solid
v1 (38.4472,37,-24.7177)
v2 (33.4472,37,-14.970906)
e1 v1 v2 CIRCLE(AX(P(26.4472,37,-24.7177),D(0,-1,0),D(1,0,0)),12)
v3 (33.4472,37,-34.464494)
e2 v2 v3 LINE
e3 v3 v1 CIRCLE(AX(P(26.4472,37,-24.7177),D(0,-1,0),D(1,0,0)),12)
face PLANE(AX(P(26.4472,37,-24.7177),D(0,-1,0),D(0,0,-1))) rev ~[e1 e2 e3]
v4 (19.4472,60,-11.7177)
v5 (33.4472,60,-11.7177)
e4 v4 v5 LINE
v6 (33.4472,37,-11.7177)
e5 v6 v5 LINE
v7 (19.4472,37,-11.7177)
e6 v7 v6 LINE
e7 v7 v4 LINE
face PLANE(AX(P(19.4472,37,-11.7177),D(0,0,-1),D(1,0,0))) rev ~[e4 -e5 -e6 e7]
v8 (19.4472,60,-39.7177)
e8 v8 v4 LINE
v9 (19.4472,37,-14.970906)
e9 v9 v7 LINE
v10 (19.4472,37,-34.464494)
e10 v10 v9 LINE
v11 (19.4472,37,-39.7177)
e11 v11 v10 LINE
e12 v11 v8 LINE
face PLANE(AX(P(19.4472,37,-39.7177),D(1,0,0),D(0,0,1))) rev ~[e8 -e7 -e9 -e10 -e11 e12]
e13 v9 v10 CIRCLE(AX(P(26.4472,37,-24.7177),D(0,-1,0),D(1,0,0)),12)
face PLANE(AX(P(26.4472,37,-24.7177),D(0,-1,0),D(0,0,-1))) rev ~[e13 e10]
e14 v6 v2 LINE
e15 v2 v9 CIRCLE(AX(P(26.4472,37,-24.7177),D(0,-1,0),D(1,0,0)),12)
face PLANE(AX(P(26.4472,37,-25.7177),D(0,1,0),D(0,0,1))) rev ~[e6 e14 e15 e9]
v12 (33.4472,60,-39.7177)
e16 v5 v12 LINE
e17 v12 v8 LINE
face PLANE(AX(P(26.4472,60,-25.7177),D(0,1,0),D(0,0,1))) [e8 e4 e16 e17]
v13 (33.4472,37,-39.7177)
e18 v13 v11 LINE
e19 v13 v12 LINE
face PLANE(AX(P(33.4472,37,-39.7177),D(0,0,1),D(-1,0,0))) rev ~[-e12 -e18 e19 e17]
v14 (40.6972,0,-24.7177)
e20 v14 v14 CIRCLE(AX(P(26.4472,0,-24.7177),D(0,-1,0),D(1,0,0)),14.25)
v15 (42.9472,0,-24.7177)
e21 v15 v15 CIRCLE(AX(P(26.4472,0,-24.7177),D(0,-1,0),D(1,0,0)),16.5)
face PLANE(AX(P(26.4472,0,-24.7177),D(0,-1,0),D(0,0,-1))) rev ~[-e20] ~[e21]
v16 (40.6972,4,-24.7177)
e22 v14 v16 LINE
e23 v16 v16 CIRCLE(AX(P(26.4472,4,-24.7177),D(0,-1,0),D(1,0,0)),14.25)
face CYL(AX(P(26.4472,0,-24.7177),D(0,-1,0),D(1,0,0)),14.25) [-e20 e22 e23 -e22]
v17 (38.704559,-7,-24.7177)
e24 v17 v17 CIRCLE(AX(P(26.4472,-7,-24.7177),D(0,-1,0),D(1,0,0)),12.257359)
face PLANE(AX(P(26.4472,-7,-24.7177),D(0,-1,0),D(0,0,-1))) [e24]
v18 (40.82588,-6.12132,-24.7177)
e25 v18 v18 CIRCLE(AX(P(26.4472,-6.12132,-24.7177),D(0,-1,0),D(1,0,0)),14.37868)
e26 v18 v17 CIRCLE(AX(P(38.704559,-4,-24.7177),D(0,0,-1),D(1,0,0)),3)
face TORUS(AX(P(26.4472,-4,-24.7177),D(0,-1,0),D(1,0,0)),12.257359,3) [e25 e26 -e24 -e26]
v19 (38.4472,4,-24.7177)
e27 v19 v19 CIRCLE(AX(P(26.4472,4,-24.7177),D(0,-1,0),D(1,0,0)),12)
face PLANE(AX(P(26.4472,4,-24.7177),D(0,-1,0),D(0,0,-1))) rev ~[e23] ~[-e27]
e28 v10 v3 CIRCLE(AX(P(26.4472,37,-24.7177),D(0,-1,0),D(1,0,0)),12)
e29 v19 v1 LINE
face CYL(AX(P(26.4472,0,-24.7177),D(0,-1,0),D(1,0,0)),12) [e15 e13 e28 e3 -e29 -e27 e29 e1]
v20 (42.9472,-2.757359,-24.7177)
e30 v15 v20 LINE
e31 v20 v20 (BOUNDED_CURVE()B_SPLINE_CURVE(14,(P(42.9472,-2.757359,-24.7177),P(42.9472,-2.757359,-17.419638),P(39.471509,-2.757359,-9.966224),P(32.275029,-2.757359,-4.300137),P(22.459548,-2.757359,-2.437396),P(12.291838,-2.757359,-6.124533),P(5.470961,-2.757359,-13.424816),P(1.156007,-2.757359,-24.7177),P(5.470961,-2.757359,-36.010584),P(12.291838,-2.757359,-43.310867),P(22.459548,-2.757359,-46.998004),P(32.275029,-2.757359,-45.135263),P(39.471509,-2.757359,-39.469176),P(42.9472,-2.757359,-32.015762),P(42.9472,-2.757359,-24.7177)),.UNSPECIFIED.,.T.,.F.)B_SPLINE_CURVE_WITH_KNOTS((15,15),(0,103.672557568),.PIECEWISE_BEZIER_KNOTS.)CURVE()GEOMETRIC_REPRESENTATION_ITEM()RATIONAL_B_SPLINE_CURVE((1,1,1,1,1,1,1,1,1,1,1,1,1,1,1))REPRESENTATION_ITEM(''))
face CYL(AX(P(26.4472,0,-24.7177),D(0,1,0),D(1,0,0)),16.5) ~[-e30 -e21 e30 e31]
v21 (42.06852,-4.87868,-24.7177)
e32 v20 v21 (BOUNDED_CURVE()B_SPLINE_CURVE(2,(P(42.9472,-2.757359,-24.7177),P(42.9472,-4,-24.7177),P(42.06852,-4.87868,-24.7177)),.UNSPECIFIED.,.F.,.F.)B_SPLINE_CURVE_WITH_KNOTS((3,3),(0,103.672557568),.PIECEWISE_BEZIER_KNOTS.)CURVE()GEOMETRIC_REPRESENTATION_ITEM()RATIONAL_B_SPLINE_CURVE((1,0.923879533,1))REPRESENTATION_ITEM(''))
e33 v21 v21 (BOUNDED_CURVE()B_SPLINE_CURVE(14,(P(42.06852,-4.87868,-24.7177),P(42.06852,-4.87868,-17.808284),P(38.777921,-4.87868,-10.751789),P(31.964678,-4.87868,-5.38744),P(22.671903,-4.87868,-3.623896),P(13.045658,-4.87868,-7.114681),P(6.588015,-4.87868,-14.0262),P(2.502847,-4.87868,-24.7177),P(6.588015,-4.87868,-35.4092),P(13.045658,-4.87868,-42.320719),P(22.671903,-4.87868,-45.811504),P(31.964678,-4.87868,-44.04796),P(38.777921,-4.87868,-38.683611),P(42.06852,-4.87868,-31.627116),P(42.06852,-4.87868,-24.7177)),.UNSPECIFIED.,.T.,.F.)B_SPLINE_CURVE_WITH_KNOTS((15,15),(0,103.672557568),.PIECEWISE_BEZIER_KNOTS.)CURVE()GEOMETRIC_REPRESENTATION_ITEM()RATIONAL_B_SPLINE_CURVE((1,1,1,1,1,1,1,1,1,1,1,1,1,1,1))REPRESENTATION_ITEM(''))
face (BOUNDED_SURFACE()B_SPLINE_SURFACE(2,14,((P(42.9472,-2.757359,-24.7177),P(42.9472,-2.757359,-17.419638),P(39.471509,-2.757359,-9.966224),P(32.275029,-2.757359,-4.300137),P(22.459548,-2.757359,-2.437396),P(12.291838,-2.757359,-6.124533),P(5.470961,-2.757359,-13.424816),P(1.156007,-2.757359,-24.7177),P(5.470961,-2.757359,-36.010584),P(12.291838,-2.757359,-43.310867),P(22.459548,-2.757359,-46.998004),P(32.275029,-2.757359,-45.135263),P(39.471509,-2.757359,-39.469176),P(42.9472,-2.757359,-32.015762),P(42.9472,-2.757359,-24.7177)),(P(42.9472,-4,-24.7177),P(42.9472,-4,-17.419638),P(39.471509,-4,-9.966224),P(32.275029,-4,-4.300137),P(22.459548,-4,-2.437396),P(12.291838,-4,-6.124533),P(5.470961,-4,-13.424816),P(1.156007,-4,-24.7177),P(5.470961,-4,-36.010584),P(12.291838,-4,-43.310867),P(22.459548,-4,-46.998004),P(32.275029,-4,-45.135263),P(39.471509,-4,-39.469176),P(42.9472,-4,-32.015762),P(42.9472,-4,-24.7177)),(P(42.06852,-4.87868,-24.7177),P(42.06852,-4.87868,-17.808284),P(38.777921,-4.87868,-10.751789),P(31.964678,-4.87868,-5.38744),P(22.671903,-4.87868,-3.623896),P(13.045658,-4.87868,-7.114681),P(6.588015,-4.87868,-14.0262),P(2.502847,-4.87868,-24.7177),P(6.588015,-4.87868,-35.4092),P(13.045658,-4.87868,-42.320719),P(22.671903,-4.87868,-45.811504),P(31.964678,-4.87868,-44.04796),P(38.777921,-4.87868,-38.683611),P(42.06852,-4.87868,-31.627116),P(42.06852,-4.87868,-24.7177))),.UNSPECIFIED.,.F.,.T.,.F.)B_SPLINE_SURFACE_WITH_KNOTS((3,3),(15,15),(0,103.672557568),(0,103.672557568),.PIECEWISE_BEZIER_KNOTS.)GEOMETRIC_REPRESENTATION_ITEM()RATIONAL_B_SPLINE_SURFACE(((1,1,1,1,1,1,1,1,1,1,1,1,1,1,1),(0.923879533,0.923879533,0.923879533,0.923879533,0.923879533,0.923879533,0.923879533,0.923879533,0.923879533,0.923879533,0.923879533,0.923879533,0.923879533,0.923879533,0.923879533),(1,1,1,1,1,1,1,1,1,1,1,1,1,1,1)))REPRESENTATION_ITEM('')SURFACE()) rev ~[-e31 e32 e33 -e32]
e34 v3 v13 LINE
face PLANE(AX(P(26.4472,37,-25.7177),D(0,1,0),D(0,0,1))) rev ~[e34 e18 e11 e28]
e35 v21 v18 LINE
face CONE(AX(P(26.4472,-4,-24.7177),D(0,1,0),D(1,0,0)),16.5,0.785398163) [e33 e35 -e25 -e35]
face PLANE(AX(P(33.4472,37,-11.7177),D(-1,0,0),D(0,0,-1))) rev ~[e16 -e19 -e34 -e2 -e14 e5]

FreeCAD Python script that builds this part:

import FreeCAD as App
import Part
import Sketcher

V = App.Vector
Q = App.Units.Quantity


def edges_at(feature, points):
    """Names of the edges that pass closest to the given points."""
    edges = feature.Shape.Edges
    near = lambda p: min(range(len(edges)), key=lambda i: edges[i].distToShape(Part.Vertex(*p))[0])
    return sorted({f"Edge{near(p) + 1}" for p in points})

doc = App.newDocument("Part")
body = doc.addObject("PartDesign::Body", "Body")

# Sketch on XZ plane
sketch1 = doc.addObject("Sketcher::SketchObject", "Sketch")
body.addObject(sketch1)
sketch1.AttachmentSupport = (doc.XZ_Plane, [""])
sketch1.MapMode = "FlatFace"
sketch1.addGeometry(Part.Circle(V(26.4472, -24.7177, 0), V(0, 0, 1), 16.5), False)
sketch1.addConstraint([
    Sketcher.Constraint("Diameter", 0, Q("33 mm")),
    Sketcher.Constraint("DistanceX", -1, 1, 0, 3, Q("26.4472 mm")),
    Sketcher.Constraint("DistanceY", 0, 3, -1, 1, Q("24.7177 mm")),
])
pad1 = doc.addObject("PartDesign::Pad", "Pad")
body.addObject(pad1)
pad1.Profile = sketch1
pad1.Length = 7

# Sketch on XZ plane
sketch2 = doc.addObject("Sketcher::SketchObject", "Sketch001")
body.addObject(sketch2)
sketch2.AttachmentSupport = (doc.XZ_Plane, [""])
sketch2.MapMode = "FlatFace"
sketch2.addGeometry(Part.Circle(V(26.4472, -24.7177, 0), V(0, 0, 1), 12), False)
sketch2.addConstraint([
    Sketcher.Constraint("Diameter", 0, Q("24 mm")),
    Sketcher.Constraint("DistanceX", -1, 1, 0, 3, Q("26.4472 mm")),
    Sketcher.Constraint("DistanceY", 0, 3, -1, 1, Q("24.7177 mm")),
])
pad2 = doc.addObject("PartDesign::Pad", "Pad001")
body.addObject(pad2)
pad2.Profile = sketch2
pad2.Length = 37
pad2.Reversed = True

# Sketch on XZ plane
sketch3 = doc.addObject("Sketcher::SketchObject", "Sketch002")
body.addObject(sketch3)
sketch3.AttachmentSupport = (doc.XZ_Plane, [""])
sketch3.MapMode = "FlatFace"
sketch3.addGeometry(Part.Circle(V(26.4472, -24.7177, 0), V(0, 0, 1), 14.25), False)
sketch3.addConstraint([
    Sketcher.Constraint("Diameter", 0, Q("28.5 mm")),
    Sketcher.Constraint("DistanceX", -1, 1, 0, 3, Q("26.4472 mm")),
    Sketcher.Constraint("DistanceY", 0, 3, -1, 1, Q("24.7177 mm")),
])
pad3 = doc.addObject("PartDesign::Pad", "Pad002")
body.addObject(pad3)
pad3.Profile = sketch3
pad3.Length = 4
pad3.Reversed = True
doc.recompute()

chamfer = doc.addObject("PartDesign::Chamfer", "Chamfer")
body.addObject(chamfer)
chamfer.Base = (pad3, edges_at(pad3, [(9.947, -7, -24.718)]))
chamfer.Size = 3
doc.recompute()

fillet = doc.addObject("PartDesign::Fillet", "Fillet")
body.addObject(fillet)
fillet.Base = (chamfer, edges_at(chamfer, [(26.447, -4, -41.218), (26.447, -7, -38.218)]))
fillet.Radius = 3

# Sketch on XZ plane
sketch4 = doc.addObject("Sketcher::SketchObject", "Sketch003")
body.addObject(sketch4)
sketch4.AttachmentSupport = (doc.XZ_Plane, [""])
sketch4.MapMode = "FlatFace"
sketch4.AttachmentOffset = App.Placement(V(0, 0, -37), App.Rotation())
sketch4.addGeometry([
    Part.LineSegment(V(19.4472, -39.7177, 0), V(19.4472, -11.7177, 0)),
    Part.LineSegment(V(19.4472, -11.7177, 0), V(33.4472, -11.7177, 0)),
    Part.LineSegment(V(33.4472, -11.7177, 0), V(33.4472, -39.7177, 0)),
    Part.LineSegment(V(33.4472, -39.7177, 0), V(19.4472, -39.7177, 0)),
], False)
sketch4.addConstraint([
    Sketcher.Constraint("Coincident", 0, 2, 1, 1),
    Sketcher.Constraint("Coincident", 1, 2, 2, 1),
    Sketcher.Constraint("Coincident", 2, 2, 3, 1),
    Sketcher.Constraint("Coincident", 3, 2, 0, 1),
    Sketcher.Constraint("Vertical", 0),
    Sketcher.Constraint("Horizontal", 1),
    Sketcher.Constraint("Vertical", 2),
    Sketcher.Constraint("Horizontal", 3),
    Sketcher.Constraint("DistanceX", 1, 1, 1, 2, Q("14 mm")),
    Sketcher.Constraint("DistanceY", 0, 1, 0, 2, Q("28 mm")),
    Sketcher.Constraint("DistanceX", -1, 1, 0, 2, Q("19.4472 mm")),
    Sketcher.Constraint("DistanceY", 0, 2, -1, 1, Q("11.7177 mm")),
])
pad4 = doc.addObject("PartDesign::Pad", "Pad003")
body.addObject(pad4)
pad4.Profile = sketch4
pad4.Length = 23
pad4.Reversed = True

doc.recompute()
